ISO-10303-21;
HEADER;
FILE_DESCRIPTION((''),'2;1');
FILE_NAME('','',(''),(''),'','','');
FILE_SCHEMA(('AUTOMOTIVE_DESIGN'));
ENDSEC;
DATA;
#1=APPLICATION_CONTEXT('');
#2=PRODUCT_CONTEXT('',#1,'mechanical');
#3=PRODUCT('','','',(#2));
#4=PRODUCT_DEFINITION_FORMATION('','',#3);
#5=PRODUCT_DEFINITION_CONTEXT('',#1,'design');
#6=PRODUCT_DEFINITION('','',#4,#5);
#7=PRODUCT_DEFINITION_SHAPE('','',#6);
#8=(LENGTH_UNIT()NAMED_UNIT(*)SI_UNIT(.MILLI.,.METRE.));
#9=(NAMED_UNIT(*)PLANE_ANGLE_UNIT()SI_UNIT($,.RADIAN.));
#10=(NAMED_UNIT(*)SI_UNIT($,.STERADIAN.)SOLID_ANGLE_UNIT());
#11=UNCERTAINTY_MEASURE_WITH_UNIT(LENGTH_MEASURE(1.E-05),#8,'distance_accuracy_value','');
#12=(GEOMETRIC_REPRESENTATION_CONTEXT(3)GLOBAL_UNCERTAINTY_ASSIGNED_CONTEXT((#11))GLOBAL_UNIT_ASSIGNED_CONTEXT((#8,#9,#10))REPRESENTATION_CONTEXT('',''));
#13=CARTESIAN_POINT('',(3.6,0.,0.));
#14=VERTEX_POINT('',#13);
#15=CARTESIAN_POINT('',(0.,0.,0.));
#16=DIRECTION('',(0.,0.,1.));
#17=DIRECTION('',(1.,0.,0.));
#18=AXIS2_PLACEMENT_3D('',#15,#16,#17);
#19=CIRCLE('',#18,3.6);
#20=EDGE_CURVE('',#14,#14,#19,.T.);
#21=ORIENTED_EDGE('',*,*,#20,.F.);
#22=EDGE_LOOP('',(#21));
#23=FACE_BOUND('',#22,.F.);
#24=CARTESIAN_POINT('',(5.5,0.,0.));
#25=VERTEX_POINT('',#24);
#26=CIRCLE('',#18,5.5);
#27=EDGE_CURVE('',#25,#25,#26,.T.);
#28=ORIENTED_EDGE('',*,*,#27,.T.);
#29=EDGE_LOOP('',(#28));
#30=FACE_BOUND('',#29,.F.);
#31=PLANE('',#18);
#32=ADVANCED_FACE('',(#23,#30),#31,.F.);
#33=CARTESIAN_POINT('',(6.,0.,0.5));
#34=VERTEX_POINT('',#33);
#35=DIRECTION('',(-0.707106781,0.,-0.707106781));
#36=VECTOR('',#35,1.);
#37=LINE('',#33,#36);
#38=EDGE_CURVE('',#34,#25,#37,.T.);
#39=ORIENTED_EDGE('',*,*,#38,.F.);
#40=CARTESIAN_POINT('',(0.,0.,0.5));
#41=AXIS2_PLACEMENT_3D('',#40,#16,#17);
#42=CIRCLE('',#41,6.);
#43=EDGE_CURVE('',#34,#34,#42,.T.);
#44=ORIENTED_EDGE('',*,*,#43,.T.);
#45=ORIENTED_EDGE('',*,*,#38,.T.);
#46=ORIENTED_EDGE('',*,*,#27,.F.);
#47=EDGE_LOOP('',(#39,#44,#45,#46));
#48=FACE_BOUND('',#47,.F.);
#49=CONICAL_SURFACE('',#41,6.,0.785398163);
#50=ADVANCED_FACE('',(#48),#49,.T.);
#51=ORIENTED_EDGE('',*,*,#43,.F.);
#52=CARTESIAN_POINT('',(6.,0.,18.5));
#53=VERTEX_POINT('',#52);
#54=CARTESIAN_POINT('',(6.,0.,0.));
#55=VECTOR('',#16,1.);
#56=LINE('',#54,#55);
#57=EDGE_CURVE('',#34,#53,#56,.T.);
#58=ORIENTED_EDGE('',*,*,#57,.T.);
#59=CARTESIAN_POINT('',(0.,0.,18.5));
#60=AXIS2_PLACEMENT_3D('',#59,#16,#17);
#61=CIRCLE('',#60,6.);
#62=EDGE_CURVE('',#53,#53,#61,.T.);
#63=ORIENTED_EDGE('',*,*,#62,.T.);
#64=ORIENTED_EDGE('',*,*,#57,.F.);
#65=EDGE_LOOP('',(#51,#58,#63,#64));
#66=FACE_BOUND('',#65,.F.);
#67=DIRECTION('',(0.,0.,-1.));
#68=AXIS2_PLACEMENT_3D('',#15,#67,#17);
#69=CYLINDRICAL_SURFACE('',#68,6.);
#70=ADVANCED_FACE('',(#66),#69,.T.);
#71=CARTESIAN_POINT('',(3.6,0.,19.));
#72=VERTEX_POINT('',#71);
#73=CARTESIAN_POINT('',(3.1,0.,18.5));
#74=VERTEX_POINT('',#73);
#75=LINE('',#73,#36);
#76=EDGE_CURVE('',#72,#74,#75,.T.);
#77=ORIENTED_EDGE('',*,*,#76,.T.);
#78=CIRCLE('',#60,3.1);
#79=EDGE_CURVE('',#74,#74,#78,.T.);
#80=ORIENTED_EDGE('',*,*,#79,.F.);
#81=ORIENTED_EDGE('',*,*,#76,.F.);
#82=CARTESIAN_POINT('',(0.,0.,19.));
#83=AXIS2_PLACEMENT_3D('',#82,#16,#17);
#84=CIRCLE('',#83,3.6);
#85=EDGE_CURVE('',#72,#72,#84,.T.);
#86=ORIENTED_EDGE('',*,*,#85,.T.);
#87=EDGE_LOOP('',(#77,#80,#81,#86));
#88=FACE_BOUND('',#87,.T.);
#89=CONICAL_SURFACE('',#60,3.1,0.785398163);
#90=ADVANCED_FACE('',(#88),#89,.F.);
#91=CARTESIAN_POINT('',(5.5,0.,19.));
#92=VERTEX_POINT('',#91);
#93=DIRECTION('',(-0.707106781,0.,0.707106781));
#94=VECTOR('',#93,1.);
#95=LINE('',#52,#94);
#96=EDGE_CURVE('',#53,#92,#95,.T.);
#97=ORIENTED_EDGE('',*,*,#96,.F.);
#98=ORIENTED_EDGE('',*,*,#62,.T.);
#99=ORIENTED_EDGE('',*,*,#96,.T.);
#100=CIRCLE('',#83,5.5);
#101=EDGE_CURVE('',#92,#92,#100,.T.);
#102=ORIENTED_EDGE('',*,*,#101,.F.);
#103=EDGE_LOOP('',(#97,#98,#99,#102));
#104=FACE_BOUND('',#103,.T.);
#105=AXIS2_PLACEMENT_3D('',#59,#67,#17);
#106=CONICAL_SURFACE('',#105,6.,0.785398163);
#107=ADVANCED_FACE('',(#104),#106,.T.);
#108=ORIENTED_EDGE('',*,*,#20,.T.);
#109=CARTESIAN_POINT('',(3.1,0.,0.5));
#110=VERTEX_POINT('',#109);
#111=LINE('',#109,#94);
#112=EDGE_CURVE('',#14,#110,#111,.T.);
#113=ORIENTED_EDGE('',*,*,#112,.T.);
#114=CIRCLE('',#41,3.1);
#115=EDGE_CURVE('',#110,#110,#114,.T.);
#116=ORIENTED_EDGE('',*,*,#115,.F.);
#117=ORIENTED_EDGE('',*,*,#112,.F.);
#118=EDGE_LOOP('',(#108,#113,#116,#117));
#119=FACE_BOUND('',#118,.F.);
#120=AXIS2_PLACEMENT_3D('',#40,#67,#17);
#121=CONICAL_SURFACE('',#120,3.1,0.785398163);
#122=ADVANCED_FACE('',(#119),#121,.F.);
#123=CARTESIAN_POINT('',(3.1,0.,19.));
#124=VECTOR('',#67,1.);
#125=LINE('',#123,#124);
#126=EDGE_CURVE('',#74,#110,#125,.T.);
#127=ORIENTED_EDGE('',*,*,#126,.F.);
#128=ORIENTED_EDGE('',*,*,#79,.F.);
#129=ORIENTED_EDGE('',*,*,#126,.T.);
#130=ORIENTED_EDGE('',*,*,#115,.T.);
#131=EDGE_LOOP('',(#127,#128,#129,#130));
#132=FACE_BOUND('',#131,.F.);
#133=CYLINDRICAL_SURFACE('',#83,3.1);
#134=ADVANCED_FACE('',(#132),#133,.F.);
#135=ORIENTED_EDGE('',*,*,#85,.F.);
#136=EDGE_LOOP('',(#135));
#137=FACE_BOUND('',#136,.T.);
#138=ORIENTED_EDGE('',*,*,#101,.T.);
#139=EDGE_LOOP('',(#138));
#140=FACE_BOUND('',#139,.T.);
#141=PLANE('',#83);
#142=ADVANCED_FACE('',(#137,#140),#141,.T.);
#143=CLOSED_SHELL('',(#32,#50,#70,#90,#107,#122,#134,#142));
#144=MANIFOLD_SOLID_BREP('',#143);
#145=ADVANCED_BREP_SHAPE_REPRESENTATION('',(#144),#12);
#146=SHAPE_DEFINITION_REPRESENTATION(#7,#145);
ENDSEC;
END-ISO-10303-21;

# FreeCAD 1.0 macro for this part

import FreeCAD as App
import Part
import Sketcher
from FreeCAD import Vector


def edges_at(feature, points):
    """Names of the edges that pass closest to the given points."""
    edges = feature.Shape.Edges
    near = lambda p: min(range(len(edges)), key=lambda i: edges[i].distToShape(Part.Vertex(*p))[0])
    return sorted({f"Edge{near(p) + 1}" for p in points})

doc = App.newDocument("Part")
params = doc.addObject("Spreadsheet::Sheet", "Params")
for row, (alias, value) in enumerate([
    ("sketch1_diameter", "12 mm"),
    ("pad1_length", "19 mm"),
    ("sketch2_diameter", "6.2 mm"),
    ("pocket1_length", "19 mm"),
    ("chamfer_size", "0.5 mm"),
], start=1):
    params.set(f"A{row}", alias)
    params.set(f"B{row}", "=" + value)
    params.setAlias(f"B{row}", alias)

body = doc.addObject("PartDesign::Body", "Body")

sketch1 = body.newObject("Sketcher::SketchObject", "Sketch")
sketch1.AttachmentSupport = (doc.getObject("XY_Plane"), [""])
sketch1.MapMode = "FlatFace"
sketch1.addGeometry(Part.Circle(Vector(0, 0, 0), Vector(0, 0, 1), 6), False)
sketch1.addConstraint([
    Sketcher.Constraint("Coincident", 0, 3, -1, 1),
    Sketcher.Constraint("Diameter", 0, 12.0),
])
sketch1.setExpression("Constraints[1]", "Params.sketch1_diameter")
pad1 = body.newObject("PartDesign::Pad", "Pad")
pad1.Profile = sketch1
pad1.setExpression("Length", "Params.pad1_length")

sketch2 = body.newObject("Sketcher::SketchObject", "Sketch001")
sketch2.AttachmentSupport = (doc.getObject("XY_Plane"), [""])
sketch2.MapMode = "FlatFace"
sketch2.AttachmentOffset = App.Placement(Vector(0, 0, 19), App.Rotation())
sketch2.addGeometry(Part.Circle(Vector(0, 0, 0), Vector(0, 0, 1), 3.1), False)
sketch2.addConstraint([
    Sketcher.Constraint("Coincident", 0, 3, -1, 1),
    Sketcher.Constraint("Diameter", 0, 6.2),
])
sketch2.setExpression("Constraints[1]", "Params.sketch2_diameter")
pocket1 = body.newObject("PartDesign::Pocket", "Pocket")
pocket1.Profile = sketch2
pocket1.setExpression("Length", "Params.pocket1_length")
doc.recompute()

chamfer = body.newObject("PartDesign::Chamfer", "Chamfer")
chamfer.Base = (pocket1, edges_at(pocket1, [
    (-6, 0, 19),
    (-3.1, 0, 19),
    (-3.1, 0, 0),
    (-6, 0, 0),
]))
chamfer.setExpression("Size", "Params.chamfer_size")

doc.recompute()
